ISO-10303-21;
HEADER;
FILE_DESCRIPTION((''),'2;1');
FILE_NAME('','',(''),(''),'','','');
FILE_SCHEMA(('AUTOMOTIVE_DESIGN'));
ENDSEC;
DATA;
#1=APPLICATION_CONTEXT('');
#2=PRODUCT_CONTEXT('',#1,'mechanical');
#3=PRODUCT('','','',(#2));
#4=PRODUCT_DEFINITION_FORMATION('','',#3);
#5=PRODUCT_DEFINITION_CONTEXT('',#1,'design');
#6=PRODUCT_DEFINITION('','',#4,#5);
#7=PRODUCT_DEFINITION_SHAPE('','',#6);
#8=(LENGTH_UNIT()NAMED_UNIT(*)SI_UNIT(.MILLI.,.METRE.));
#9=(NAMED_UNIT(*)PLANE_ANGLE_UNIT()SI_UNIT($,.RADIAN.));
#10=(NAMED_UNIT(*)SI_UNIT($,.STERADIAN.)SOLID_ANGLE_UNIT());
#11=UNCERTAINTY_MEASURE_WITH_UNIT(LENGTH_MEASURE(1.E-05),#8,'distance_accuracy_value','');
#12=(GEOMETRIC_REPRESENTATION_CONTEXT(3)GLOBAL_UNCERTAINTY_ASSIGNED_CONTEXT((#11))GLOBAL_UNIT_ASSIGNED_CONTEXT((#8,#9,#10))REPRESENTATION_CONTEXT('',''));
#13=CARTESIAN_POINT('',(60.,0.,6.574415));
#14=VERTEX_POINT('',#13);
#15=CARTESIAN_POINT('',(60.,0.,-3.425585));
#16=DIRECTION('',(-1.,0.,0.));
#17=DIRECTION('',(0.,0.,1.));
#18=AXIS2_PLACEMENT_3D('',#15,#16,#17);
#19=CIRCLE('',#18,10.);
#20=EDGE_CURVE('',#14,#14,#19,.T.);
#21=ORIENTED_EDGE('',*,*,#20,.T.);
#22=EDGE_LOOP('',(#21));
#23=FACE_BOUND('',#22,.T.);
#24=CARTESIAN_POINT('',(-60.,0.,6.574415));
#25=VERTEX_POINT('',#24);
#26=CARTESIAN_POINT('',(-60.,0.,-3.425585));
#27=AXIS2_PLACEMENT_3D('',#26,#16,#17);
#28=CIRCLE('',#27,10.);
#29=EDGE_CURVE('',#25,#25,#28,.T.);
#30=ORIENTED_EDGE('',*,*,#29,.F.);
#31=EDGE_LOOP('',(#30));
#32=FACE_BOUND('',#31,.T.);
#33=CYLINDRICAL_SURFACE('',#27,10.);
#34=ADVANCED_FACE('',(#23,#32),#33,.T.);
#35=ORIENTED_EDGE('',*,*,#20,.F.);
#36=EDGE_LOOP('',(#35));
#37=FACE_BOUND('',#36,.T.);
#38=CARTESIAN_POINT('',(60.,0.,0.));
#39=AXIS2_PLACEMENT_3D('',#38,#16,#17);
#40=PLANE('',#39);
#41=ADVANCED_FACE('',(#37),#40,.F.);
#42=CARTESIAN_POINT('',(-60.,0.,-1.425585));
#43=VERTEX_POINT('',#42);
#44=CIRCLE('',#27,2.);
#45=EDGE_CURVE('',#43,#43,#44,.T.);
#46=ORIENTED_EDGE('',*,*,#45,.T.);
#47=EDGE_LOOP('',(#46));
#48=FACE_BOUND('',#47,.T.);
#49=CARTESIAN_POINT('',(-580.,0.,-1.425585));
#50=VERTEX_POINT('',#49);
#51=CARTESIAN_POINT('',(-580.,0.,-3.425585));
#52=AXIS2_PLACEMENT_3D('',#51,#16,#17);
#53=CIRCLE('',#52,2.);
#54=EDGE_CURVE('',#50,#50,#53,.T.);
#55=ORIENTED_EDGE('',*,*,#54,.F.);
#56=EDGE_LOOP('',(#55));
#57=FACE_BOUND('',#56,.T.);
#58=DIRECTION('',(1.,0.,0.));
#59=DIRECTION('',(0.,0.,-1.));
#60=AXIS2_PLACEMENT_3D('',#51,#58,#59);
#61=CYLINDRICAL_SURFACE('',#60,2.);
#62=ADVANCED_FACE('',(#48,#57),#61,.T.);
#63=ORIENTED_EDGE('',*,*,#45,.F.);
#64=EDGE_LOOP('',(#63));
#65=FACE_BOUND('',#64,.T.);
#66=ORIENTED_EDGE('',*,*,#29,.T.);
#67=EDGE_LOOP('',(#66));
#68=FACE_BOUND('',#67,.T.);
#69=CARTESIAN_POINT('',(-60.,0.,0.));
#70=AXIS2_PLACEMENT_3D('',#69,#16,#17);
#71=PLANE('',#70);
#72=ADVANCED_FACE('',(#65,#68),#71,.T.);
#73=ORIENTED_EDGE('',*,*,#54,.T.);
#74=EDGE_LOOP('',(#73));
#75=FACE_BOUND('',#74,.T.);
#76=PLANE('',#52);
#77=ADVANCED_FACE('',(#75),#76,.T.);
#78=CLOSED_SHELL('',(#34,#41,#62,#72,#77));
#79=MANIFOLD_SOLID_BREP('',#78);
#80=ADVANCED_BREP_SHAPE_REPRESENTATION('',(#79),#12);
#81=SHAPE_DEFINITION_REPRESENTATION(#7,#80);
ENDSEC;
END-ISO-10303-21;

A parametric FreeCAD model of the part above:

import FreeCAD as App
import Part
import Sketcher

V = App.Vector


def add_polygon(sketch, points):
    """Adds a closed chain of lines whose ends are joined by coincident constraints."""
    first, n = sketch.GeometryCount, len(points)
    for a, b in zip(points, points[1:] + points[:1]):
        sketch.addGeometry(Part.LineSegment(App.Vector(*a, 0), App.Vector(*b, 0)), False)
    for i in range(n):
        sketch.addConstraint(Sketcher.Constraint("Coincident", first + i, 2, first + (i + 1) % n, 1))

doc = App.newDocument("Part")
body = doc.addObject("PartDesign::Body", "Body")

sketch1 = body.newObject("Sketcher::SketchObject", "Sketch")
sketch1.AttachmentSupport = (doc.getObject("XZ_Plane"), [""])
sketch1.MapMode = "FlatFace"
add_polygon(sketch1, [(-60, -3), (-60, 7), (60, 7), (60, -3)])
sketch1.addGeometry(Part.LineSegment(V(-60, -3, 0), V(60, -3, 0)), True)
sketch1.addConstraint([
    Sketcher.Constraint("Vertical", 0),
    Sketcher.Constraint("Horizontal", 1),
    Sketcher.Constraint("Vertical", 2),
    Sketcher.Constraint("Horizontal", 3),
    Sketcher.Constraint("Horizontal", 4),
    Sketcher.Constraint("Coincident", 4, 1, 3, 2),
    Sketcher.Constraint("Vertical", 1, 2, 4, 2),
    Sketcher.Constraint("DistanceX", 1, 1, 1, 2, 120.0),
    Sketcher.Constraint("DistanceY", 0, 1, 0, 2, 10.0),
    Sketcher.Constraint("DistanceX", 0, 2, -1, 1, 60.0),
    Sketcher.Constraint("DistanceY", -1, 1, 0, 2, 6.574415),
])
revolution = body.newObject("PartDesign::Revolution", "Revolution")
revolution.Profile = sketch1
revolution.ReferenceAxis = (sketch1, ["Axis0"])
revolution.Angle = 360

sketch2 = body.newObject("Sketcher::SketchObject", "Sketch001")
sketch2.AttachmentSupport = (doc.getObject("YZ_Plane"), [""])
sketch2.MapMode = "FlatFace"
sketch2.AttachmentOffset = App.Placement(V(0, 0, -60), App.Rotation())
sketch2.addGeometry(Part.Circle(V(0, -3.4, 0), V(0, 0, 1), 2), False)
sketch2.addConstraint([
    Sketcher.Constraint("PointOnObject", 0, 3, -2),
    Sketcher.Constraint("Diameter", 0, 4.0),
    Sketcher.Constraint("DistanceY", 0, 3, -1, 1, 3.425585),
])
pad1 = body.newObject("PartDesign::Pad", "Pad")
pad1.Profile = sketch2
pad1.Length = 520
pad1.Reversed = True

doc.recompute()
